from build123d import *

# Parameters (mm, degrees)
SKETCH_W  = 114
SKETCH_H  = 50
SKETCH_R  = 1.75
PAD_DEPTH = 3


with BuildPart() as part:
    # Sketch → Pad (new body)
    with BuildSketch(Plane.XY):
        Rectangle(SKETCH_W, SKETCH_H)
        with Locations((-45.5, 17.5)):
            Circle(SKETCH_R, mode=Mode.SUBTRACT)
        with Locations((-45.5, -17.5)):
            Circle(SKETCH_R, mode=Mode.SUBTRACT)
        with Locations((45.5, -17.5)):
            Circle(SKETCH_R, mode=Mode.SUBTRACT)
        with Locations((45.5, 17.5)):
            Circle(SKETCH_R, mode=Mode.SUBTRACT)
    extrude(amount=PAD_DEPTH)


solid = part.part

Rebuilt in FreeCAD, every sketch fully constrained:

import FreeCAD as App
import Part
import Sketcher

doc = App.newDocument("Part")
params = doc.addObject("Spreadsheet::Sheet", "Params")
for row, (alias, value) in enumerate([
    ("sketch1_diameter", "3.5 mm"),
    ("sketch1_width", "114 mm"),
    ("sketch1_height", "50 mm"),
    ("pad1_length", "3 mm"),
], start=1):
    params.set(f"A{row}", alias)
    params.set(f"B{row}", "=" + value)
    params.setAlias(f"B{row}", alias)

body = doc.addObject("PartDesign::Body", "Body")

sketch1 = doc.addObject("Sketcher::SketchObject", "Sketch")
body.addObject(sketch1)
sketch1.AttachmentSupport = (doc.XY_Plane, [""])
sketch1.MapMode = "FlatFace"
sketch1.addGeometry(Part.LineSegment(App.Vector(-57, 25, 0), App.Vector(-57, -25, 0)), False)
sketch1.addGeometry(Part.LineSegment(App.Vector(-57, -25, 0), App.Vector(57, -25, 0)), False)
sketch1.addGeometry(Part.LineSegment(App.Vector(57, -25, 0), App.Vector(57, 25, 0)), False)
sketch1.addGeometry(Part.LineSegment(App.Vector(57, 25, 0), App.Vector(-57, 25, 0)), False)
sketch1.addGeometry(Part.Circle(App.Vector(-45.5, -17.5, 0), App.Vector(0, 0, 1), 1.8), False)
sketch1.addGeometry(Part.Circle(App.Vector(45.5, -17.5, 0), App.Vector(0, 0, 1), 1.8), False)
sketch1.addGeometry(Part.Circle(App.Vector(-45.5, 17.5, 0), App.Vector(0, 0, 1), 1.8), False)
sketch1.addGeometry(Part.Circle(App.Vector(45.5, 17.5, 0), App.Vector(0, 0, 1), 1.8), False)
sketch1.addConstraint(Sketcher.Constraint("Coincident", 0, 2, 1, 1))
sketch1.addConstraint(Sketcher.Constraint("Coincident", 1, 2, 2, 1))
sketch1.addConstraint(Sketcher.Constraint("Coincident", 2, 2, 3, 1))
sketch1.addConstraint(Sketcher.Constraint("Coincident", 3, 2, 0, 1))
sketch1.addConstraint(Sketcher.Constraint("Vertical", 0))
sketch1.addConstraint(Sketcher.Constraint("Horizontal", 1))
sketch1.addConstraint(Sketcher.Constraint("Vertical", 2))
sketch1.addConstraint(Sketcher.Constraint("Horizontal", 3))
sketch1.addConstraint(Sketcher.Constraint("Equal", 4, 5))
sketch1.addConstraint(Sketcher.Constraint("Equal", 5, 6))
sketch1.addConstraint(Sketcher.Constraint("Equal", 6, 7))
sketch1.addConstraint(Sketcher.Constraint("Symmetric", 5, 3, 6, 3, -1, 1))
sketch1.addConstraint(Sketcher.Constraint("Symmetric", 4, 3, 7, 3, -1, 1))
sketch1.addConstraint(Sketcher.Constraint("Symmetric", 0, 2, 2, 2, -1, 1))
sketch1.addConstraint(Sketcher.Constraint("Symmetric", 4, 3, 5, 3, -2))
sketch1.addConstraint(Sketcher.Constraint("Diameter", 4, 3.5))
sketch1.addConstraint(Sketcher.Constraint("DistanceX", 1, 1, 1, 2, 114.0))
sketch1.addConstraint(Sketcher.Constraint("DistanceY", 0, 2, 0, 1, 50.0))
sketch1.addConstraint(Sketcher.Constraint("DistanceX", 4, 3, 5, 3, 91.0))
sketch1.addConstraint(Sketcher.Constraint("DistanceY", 4, 3, 6, 3, 35.0))
sketch1.setExpression("Constraints[15]", "Params.sketch1_diameter")
sketch1.setExpression("Constraints[16]", "Params.sketch1_width")
sketch1.setExpression("Constraints[17]", "Params.sketch1_height")
pad1 = doc.addObject("PartDesign::Pad", "Pad")
body.addObject(pad1)
pad1.Profile = sketch1
pad1.setExpression("Length", "Params.pad1_length")

doc.recompute()
